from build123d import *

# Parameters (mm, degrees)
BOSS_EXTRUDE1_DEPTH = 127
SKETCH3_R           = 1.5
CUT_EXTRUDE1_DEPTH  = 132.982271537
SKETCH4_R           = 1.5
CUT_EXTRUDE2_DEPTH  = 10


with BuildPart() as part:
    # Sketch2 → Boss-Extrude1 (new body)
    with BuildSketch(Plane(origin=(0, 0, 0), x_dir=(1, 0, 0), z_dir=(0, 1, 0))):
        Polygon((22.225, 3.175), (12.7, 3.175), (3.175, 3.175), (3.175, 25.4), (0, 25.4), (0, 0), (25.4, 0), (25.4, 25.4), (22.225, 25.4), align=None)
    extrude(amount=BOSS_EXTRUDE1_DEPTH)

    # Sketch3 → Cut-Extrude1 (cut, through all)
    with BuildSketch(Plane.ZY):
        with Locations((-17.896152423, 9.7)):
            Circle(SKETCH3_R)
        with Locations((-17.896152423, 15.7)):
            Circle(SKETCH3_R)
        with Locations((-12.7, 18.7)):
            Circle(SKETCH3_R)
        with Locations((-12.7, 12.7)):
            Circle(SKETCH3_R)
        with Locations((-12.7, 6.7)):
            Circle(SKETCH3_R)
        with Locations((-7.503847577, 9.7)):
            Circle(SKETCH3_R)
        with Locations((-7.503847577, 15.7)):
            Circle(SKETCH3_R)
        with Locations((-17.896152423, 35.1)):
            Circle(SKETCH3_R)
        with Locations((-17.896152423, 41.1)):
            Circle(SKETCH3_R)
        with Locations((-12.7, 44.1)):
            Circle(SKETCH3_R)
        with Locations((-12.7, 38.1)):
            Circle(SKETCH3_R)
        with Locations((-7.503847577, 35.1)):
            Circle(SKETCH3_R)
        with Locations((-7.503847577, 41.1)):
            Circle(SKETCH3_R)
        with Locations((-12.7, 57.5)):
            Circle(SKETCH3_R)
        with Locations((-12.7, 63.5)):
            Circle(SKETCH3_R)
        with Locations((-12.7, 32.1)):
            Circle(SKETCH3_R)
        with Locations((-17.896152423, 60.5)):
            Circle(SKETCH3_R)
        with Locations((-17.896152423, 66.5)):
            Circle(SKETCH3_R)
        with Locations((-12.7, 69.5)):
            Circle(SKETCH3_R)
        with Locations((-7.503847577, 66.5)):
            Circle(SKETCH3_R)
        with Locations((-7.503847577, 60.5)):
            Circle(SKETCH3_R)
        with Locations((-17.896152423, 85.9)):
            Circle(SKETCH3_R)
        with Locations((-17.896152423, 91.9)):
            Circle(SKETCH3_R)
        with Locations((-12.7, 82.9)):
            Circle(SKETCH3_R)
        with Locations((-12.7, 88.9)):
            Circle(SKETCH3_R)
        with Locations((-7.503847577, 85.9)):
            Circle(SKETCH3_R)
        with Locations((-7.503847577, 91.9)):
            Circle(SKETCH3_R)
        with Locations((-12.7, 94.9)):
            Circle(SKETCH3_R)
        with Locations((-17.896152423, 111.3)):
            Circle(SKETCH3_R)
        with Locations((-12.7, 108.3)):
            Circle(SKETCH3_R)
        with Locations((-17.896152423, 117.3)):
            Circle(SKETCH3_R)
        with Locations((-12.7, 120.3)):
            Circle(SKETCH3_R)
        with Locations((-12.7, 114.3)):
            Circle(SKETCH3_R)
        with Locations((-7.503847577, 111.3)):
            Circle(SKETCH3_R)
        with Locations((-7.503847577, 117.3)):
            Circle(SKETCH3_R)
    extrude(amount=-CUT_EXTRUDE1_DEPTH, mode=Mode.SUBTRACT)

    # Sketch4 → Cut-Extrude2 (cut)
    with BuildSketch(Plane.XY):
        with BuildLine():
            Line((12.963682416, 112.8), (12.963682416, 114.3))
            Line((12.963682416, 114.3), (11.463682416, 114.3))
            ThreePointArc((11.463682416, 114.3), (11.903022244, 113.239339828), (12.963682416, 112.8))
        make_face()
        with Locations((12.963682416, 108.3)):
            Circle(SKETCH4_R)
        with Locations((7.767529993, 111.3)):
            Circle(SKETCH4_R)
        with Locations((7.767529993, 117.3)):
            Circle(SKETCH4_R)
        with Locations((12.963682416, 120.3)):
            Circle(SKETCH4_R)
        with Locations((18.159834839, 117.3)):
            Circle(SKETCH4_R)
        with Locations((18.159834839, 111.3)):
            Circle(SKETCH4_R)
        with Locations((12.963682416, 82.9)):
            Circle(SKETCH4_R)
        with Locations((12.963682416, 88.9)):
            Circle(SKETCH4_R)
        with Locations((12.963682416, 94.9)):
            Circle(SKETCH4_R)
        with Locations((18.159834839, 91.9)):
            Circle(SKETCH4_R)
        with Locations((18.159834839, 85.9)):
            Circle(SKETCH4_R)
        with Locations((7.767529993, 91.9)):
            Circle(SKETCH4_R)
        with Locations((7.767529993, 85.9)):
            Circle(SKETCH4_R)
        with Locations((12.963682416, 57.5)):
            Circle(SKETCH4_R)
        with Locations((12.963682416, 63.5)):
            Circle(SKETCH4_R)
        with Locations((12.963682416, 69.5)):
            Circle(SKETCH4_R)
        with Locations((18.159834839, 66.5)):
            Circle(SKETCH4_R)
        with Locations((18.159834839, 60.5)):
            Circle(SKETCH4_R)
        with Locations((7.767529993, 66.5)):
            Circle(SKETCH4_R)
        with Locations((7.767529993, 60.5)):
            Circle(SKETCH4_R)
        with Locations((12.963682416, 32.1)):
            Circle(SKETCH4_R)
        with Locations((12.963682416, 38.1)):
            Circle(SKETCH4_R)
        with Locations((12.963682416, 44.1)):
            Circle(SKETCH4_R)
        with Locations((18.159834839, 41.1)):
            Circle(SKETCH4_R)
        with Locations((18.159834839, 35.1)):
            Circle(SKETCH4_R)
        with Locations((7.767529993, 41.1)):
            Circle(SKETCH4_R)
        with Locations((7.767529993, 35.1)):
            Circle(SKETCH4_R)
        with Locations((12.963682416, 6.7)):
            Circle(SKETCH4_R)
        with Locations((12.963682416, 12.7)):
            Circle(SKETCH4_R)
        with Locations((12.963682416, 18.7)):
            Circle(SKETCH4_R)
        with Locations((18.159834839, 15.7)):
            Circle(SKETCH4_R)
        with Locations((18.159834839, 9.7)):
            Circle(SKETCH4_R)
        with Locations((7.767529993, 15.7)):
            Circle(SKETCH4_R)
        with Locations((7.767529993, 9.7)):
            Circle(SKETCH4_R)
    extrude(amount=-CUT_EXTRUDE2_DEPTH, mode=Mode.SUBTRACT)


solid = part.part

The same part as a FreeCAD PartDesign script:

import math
import FreeCAD as App
import Part
import Sketcher
Q = App.Units.Quantity

doc = App.newDocument("Part")
body = doc.addObject("PartDesign::Body", "Body")

sketch1 = body.newObject("Sketcher::SketchObject", "Sketch")
sketch1.AttachmentSupport = (doc.getObject("XZ_Plane"), [""])
sketch1.MapMode = "FlatFace"
sketch1.addGeometry([
    Part.LineSegment(App.Vector(22.2, -3.2, 0), App.Vector(3.2, -3.2, 0)),
    Part.LineSegment(App.Vector(3.2, -3.2, 0), App.Vector(3.2, -25.4, 0)),
    Part.LineSegment(App.Vector(3.2, -25.4, 0), App.Vector(0, -25.4, 0)),
    Part.LineSegment(App.Vector(0, -25.4, 0), App.Vector(0, 0, 0)),
    Part.LineSegment(App.Vector(0, 0, 0), App.Vector(25.4, 0, 0)),
    Part.LineSegment(App.Vector(25.4, 0, 0), App.Vector(25.4, -25.4, 0)),
    Part.LineSegment(App.Vector(25.4, -25.4, 0), App.Vector(22.2, -25.4, 0)),
    Part.LineSegment(App.Vector(22.2, -25.4, 0), App.Vector(22.2, -3.2, 0)),
], False)
sketch1.addConstraint([
    Sketcher.Constraint("Coincident", 0, 2, 1, 1),
    Sketcher.Constraint("Coincident", 1, 2, 2, 1),
    Sketcher.Constraint("Coincident", 2, 2, 3, 1),
    Sketcher.Constraint("Coincident", 3, 2, 4, 1),
    Sketcher.Constraint("Coincident", 4, 2, 5, 1),
    Sketcher.Constraint("Coincident", 5, 2, 6, 1),
    Sketcher.Constraint("Coincident", 6, 2, 7, 1),
    Sketcher.Constraint("Coincident", 7, 2, 0, 1),
    Sketcher.Constraint("Horizontal", 0),
    Sketcher.Constraint("Vertical", 1),
    Sketcher.Constraint("Horizontal", 2),
    Sketcher.Constraint("Vertical", 3),
    Sketcher.Constraint("Horizontal", 4),
    Sketcher.Constraint("Vertical", 5),
    Sketcher.Constraint("Horizontal", 6),
    Sketcher.Constraint("Vertical", 7),
    Sketcher.Constraint("Coincident", 3, 2, -1, 1),
    Sketcher.Constraint("Horizontal", 2, 2, 5, 2),
    Sketcher.Constraint("Equal", 2, 6),
    Sketcher.Constraint("Equal", 4, 3),
    Sketcher.Constraint("DistanceX", 4, 1, 4, 2, Q("1 in")),
    Sketcher.Constraint("DistanceX", 0, 2, 0, 1, Q("0.75 in")),
    Sketcher.Constraint("DistanceY", 1, 2, 1, 1, Q("0.875 in")),
])
pad1 = body.newObject("PartDesign::Pad", "Pad")
pad1.Profile = sketch1
pad1.Length = Q("5 in")
pad1.Reversed = True

sketch2 = body.newObject("Sketcher::SketchObject", "Sketch001")
sketch2.AttachmentSupport = (doc.getObject("YZ_Plane"), [""])
sketch2.MapMode = "FlatFace"
sketch2.addGeometry([
    Part.Circle(App.Vector(9.7, -17.9, 0), App.Vector(0, 0, 1), 1.5),
    Part.Circle(App.Vector(15.7, -17.9, 0), App.Vector(0, 0, 1), 1.5),
    Part.Circle(App.Vector(18.7, -12.7, 0), App.Vector(0, 0, 1), 1.5),
    Part.Circle(App.Vector(12.7, -12.7, 0), App.Vector(0, 0, 1), 1.5),
    Part.Circle(App.Vector(6.7, -12.7, 0), App.Vector(0, 0, 1), 1.5),
    Part.Circle(App.Vector(9.7, -7.5, 0), App.Vector(0, 0, 1), 1.5),
    Part.Circle(App.Vector(15.7, -7.5, 0), App.Vector(0, 0, 1), 1.5),
    Part.Circle(App.Vector(35.1, -17.9, 0), App.Vector(0, 0, 1), 1.5),
    Part.Circle(App.Vector(41.1, -17.9, 0), App.Vector(0, 0, 1), 1.5),
    Part.Circle(App.Vector(44.1, -12.7, 0), App.Vector(0, 0, 1), 1.5),
    Part.Circle(App.Vector(38.1, -12.7, 0), App.Vector(0, 0, 1), 1.5),
    Part.Circle(App.Vector(35.1, -7.5, 0), App.Vector(0, 0, 1), 1.5),
    Part.Circle(App.Vector(41.1, -7.5, 0), App.Vector(0, 0, 1), 1.5),
    Part.Circle(App.Vector(57.5, -12.7, 0), App.Vector(0, 0, 1), 1.5),
    Part.Circle(App.Vector(63.5, -12.7, 0), App.Vector(0, 0, 1), 1.5),
    Part.Circle(App.Vector(32.1, -12.7, 0), App.Vector(0, 0, 1), 1.5),
    Part.Circle(App.Vector(60.5, -17.9, 0), App.Vector(0, 0, 1), 1.5),
    Part.Circle(App.Vector(66.5, -17.9, 0), App.Vector(0, 0, 1), 1.5),
    Part.Circle(App.Vector(69.5, -12.7, 0), App.Vector(0, 0, 1), 1.5),
    Part.Circle(App.Vector(66.5, -7.5, 0), App.Vector(0, 0, 1), 1.5),
    Part.Circle(App.Vector(60.5, -7.5, 0), App.Vector(0, 0, 1), 1.5),
    Part.Circle(App.Vector(85.9, -17.9, 0), App.Vector(0, 0, 1), 1.5),
    Part.Circle(App.Vector(91.9, -17.9, 0), App.Vector(0, 0, 1), 1.5),
    Part.Circle(App.Vector(82.9, -12.7, 0), App.Vector(0, 0, 1), 1.5),
    Part.Circle(App.Vector(88.9, -12.7, 0), App.Vector(0, 0, 1), 1.5),
    Part.Circle(App.Vector(85.9, -7.5, 0), App.Vector(0, 0, 1), 1.5),
    Part.Circle(App.Vector(91.9, -7.5, 0), App.Vector(0, 0, 1), 1.5),
    Part.Circle(App.Vector(94.9, -12.7, 0), App.Vector(0, 0, 1), 1.5),
    Part.Circle(App.Vector(111.3, -17.9, 0), App.Vector(0, 0, 1), 1.5),
    Part.Circle(App.Vector(108.3, -12.7, 0), App.Vector(0, 0, 1), 1.5),
    Part.Circle(App.Vector(117.3, -17.9, 0), App.Vector(0, 0, 1), 1.5),
    Part.Circle(App.Vector(120.3, -12.7, 0), App.Vector(0, 0, 1), 1.5),
    Part.Circle(App.Vector(114.3, -12.7, 0), App.Vector(0, 0, 1), 1.5),
    Part.Circle(App.Vector(111.3, -7.5, 0), App.Vector(0, 0, 1), 1.5),
    Part.Circle(App.Vector(117.3, -7.5, 0), App.Vector(0, 0, 1), 1.5),
], False)
sketch2.addConstraint([
    Sketcher.Constraint("Equal", 0, 1),
    Sketcher.Constraint("Equal", 1, 2),
    Sketcher.Constraint("Equal", 2, 3),
    Sketcher.Constraint("Equal", 3, 4),
    Sketcher.Constraint("Equal", 4, 5),
    Sketcher.Constraint("Equal", 5, 6),
    Sketcher.Constraint("Equal", 6, 7),
    Sketcher.Constraint("Equal", 7, 8),
    Sketcher.Constraint("Equal", 8, 9),
    Sketcher.Constraint("Equal", 9, 10),
    Sketcher.Constraint("Equal", 10, 11),
    Sketcher.Constraint("Equal", 11, 12),
    Sketcher.Constraint("Equal", 12, 13),
    Sketcher.Constraint("Equal", 13, 14),
    Sketcher.Constraint("Equal", 14, 15),
    Sketcher.Constraint("Equal", 15, 16),
    Sketcher.Constraint("Equal", 16, 17),
    Sketcher.Constraint("Equal", 17, 18),
    Sketcher.Constraint("Equal", 18, 19),
    Sketcher.Constraint("Equal", 19, 20),
    Sketcher.Constraint("Equal", 20, 21),
    Sketcher.Constraint("Equal", 21, 22),
    Sketcher.Constraint("Equal", 22, 23),
    Sketcher.Constraint("Equal", 23, 24),
    Sketcher.Constraint("Equal", 24, 25),
    Sketcher.Constraint("Equal", 25, 26),
    Sketcher.Constraint("Equal", 26, 27),
    Sketcher.Constraint("Equal", 27, 28),
    Sketcher.Constraint("Equal", 28, 29),
    Sketcher.Constraint("Equal", 29, 30),
    Sketcher.Constraint("Equal", 30, 31),
    Sketcher.Constraint("Equal", 31, 32),
    Sketcher.Constraint("Equal", 32, 33),
    Sketcher.Constraint("Equal", 33, 34),
    Sketcher.Constraint("Horizontal", 0, 3, 1, 3),
    Sketcher.Constraint("Horizontal", 2, 3, 3, 3),
    Sketcher.Constraint("Horizontal", 3, 3, 4, 3),
    Sketcher.Constraint("Horizontal", 5, 3, 6, 3),
    Sketcher.Constraint("Horizontal", 1, 3, 7, 3),
    Sketcher.Constraint("Horizontal", 7, 3, 8, 3),
    Sketcher.Constraint("Horizontal", 4, 3, 9, 3),
    Sketcher.Constraint("Horizontal", 9, 3, 10, 3),
    Sketcher.Constraint("Horizontal", 6, 3, 11, 3),
    Sketcher.Constraint("Horizontal", 11, 3, 12, 3),
    Sketcher.Constraint("Horizontal", 10, 3, 13, 3),
    Sketcher.Constraint("Horizontal", 13, 3, 14, 3),
    Sketcher.Constraint("Horizontal", 14, 3, 15, 3),
    Sketcher.Constraint("Horizontal", 8, 3, 16, 3),
    Sketcher.Constraint("Horizontal", 16, 3, 17, 3),
    Sketcher.Constraint("Horizontal", 15, 3, 18, 3),
    Sketcher.Constraint("Horizontal", 12, 3, 19, 3),
    Sketcher.Constraint("Horizontal", 19, 3, 20, 3),
    Sketcher.Constraint("Horizontal", 17, 3, 21, 3),
    Sketcher.Constraint("Horizontal", 21, 3, 22, 3),
    Sketcher.Constraint("Horizontal", 18, 3, 23, 3),
    Sketcher.Constraint("Horizontal", 23, 3, 24, 3),
    Sketcher.Constraint("Horizontal", 20, 3, 25, 3),
    Sketcher.Constraint("Horizontal", 25, 3, 26, 3),
    Sketcher.Constraint("Horizontal", 24, 3, 27, 3),
    Sketcher.Constraint("Horizontal", 22, 3, 28, 3),
    Sketcher.Constraint("Horizontal", 27, 3, 29, 3),
    Sketcher.Constraint("Horizontal", 28, 3, 30, 3),
    Sketcher.Constraint("Horizontal", 29, 3, 31, 3),
    Sketcher.Constraint("Horizontal", 31, 3, 32, 3),
    Sketcher.Constraint("Horizontal", 26, 3, 33, 3),
    Sketcher.Constraint("Horizontal", 33, 3, 34, 3),
    Sketcher.Constraint("Vertical", 0, 3, 5, 3),
    Sketcher.Constraint("Vertical", 1, 3, 6, 3),
    Sketcher.Constraint("Vertical", 7, 3, 11, 3),
    Sketcher.Constraint("Vertical", 8, 3, 12, 3),
    Sketcher.Constraint("Vertical", 17, 3, 19, 3),
    Sketcher.Constraint("Vertical", 16, 3, 20, 3),
    Sketcher.Constraint("Vertical", 21, 3, 25, 3),
    Sketcher.Constraint("Vertical", 22, 3, 26, 3),
    Sketcher.Constraint("Vertical", 28, 3, 33, 3),
    Sketcher.Constraint("Vertical", 30, 3, 34, 3),
    Sketcher.Constraint("DistanceX", 0, 3, 7, 3, Q("1 in")),
    Sketcher.Constraint("DistanceX", 1, 3, 8, 3, Q("1 in")),
    Sketcher.Constraint("DistanceX", 2, 3, 9, 3, Q("1 in")),
    Sketcher.Constraint("DistanceX", 10, 3, 14, 3, Q("1 in")),
    Sketcher.Constraint("DistanceX", 8, 3, 17, 3, Q("1 in")),
    Sketcher.Constraint("DistanceX", 9, 3, 18, 3, Q("1 in")),
    Sketcher.Constraint("DistanceX", 16, 3, 21, 3, Q("1 in")),
    Sketcher.Constraint("DistanceX", 17, 3, 22, 3, Q("1 in")),
    Sketcher.Constraint("DistanceX", 21, 3, 28, 3, Q("1 in")),
    Sketcher.Constraint("DistanceX", 22, 3, 30, 3, Q("1 in")),
    Sketcher.Constraint("DistanceX", 27, 3, 31, 3, Q("1 in")),
    Sketcher.Constraint("DistanceY", 2, 3, -1, 1, Q("0.5 in")),
    Sketcher.Constraint("DistanceX", -1, 1, 3, 3, Q("0.5 in")),
    Sketcher.Constraint("DistanceX", -1, 1, 10, 3, Q("1.5 in")),
    Sketcher.Constraint("DistanceX", -1, 1, 24, 3, Q("3.5 in")),
    Sketcher.Constraint("DistanceX", -1, 1, 32, 3, Q("4.5 in")),
    Sketcher.Constraint("Diameter", 0, Q("3 mm")),
    Sketcher.Constraint("DistanceX", -1, 1, 0, 3, Q("9.7 mm")),
    Sketcher.Constraint("DistanceX", -1, 1, 1, 3, Q("15.7 mm")),
    Sketcher.Constraint("DistanceX", -1, 1, 2, 3, Q("18.7 mm")),
    Sketcher.Constraint("DistanceX", -1, 1, 4, 3, Q("6.7 mm")),
    Sketcher.Constraint("DistanceX", -1, 1, 13, 3, Q("57.5 mm")),
    Sketcher.Constraint("DistanceX", -1, 1, 15, 3, Q("32.1 mm")),
    Sketcher.Constraint("DistanceX", -1, 1, 16, 3, Q("60.5 mm")),
    Sketcher.Constraint("DistanceX", -1, 1, 23, 3, Q("82.9 mm")),
    Sketcher.Constraint("DistanceX", -1, 1, 27, 3, Q("94.9 mm")),
    Sketcher.Constraint("DistanceX", -1, 1, 29, 3, Q("108.3 mm")),
    Sketcher.Constraint("DistanceY", 0, 3, -1, 1, Q("17.896152 mm")),
    Sketcher.Constraint("DistanceY", 5, 3, -1, 1, Q("7.503848 mm")),
])
pocket1 = body.newObject("PartDesign::Pocket", "Pocket")
pocket1.Profile = sketch2
pocket1.Type = "ThroughAll"
pocket1.Reversed = True

sketch3 = body.newObject("Sketcher::SketchObject", "Sketch002")
sketch3.AttachmentSupport = (doc.getObject("XY_Plane"), [""])
sketch3.MapMode = "FlatFace"
sketch3.addGeometry([
    Part.LineSegment(App.Vector(13, 112.8, 0), App.Vector(13, 114.3, 0)),
    Part.LineSegment(App.Vector(13, 114.3, 0), App.Vector(11.5, 114.3, 0)),
    Part.ArcOfCircle(Part.Circle(App.Vector(13, 114.3, 0), App.Vector(0, 0, 1), 1.5), math.radians(180), math.radians(270)),
    Part.Circle(App.Vector(13, 108.3, 0), App.Vector(0, 0, 1), 1.5),
    Part.Circle(App.Vector(7.8, 111.3, 0), App.Vector(0, 0, 1), 1.5),
    Part.Circle(App.Vector(7.8, 117.3, 0), App.Vector(0, 0, 1), 1.5),
    Part.Circle(App.Vector(13, 120.3, 0), App.Vector(0, 0, 1), 1.5),
    Part.Circle(App.Vector(18.2, 117.3, 0), App.Vector(0, 0, 1), 1.5),
    Part.Circle(App.Vector(18.2, 111.3, 0), App.Vector(0, 0, 1), 1.5),
    Part.Circle(App.Vector(13, 82.9, 0), App.Vector(0, 0, 1), 1.5),
    Part.Circle(App.Vector(13, 88.9, 0), App.Vector(0, 0, 1), 1.5),
    Part.Circle(App.Vector(13, 94.9, 0), App.Vector(0, 0, 1), 1.5),
    Part.Circle(App.Vector(18.2, 91.9, 0), App.Vector(0, 0, 1), 1.5),
    Part.Circle(App.Vector(18.2, 85.9, 0), App.Vector(0, 0, 1), 1.5),
    Part.Circle(App.Vector(7.8, 91.9, 0), App.Vector(0, 0, 1), 1.5),
    Part.Circle(App.Vector(7.8, 85.9, 0), App.Vector(0, 0, 1), 1.5),
    Part.Circle(App.Vector(13, 57.5, 0), App.Vector(0, 0, 1), 1.5),
    Part.Circle(App.Vector(13, 63.5, 0), App.Vector(0, 0, 1), 1.5),
    Part.Circle(App.Vector(13, 69.5, 0), App.Vector(0, 0, 1), 1.5),
    Part.Circle(App.Vector(18.2, 66.5, 0), App.Vector(0, 0, 1), 1.5),
    Part.Circle(App.Vector(18.2, 60.5, 0), App.Vector(0, 0, 1), 1.5),
    Part.Circle(App.Vector(7.8, 66.5, 0), App.Vector(0, 0, 1), 1.5),
    Part.Circle(App.Vector(7.8, 60.5, 0), App.Vector(0, 0, 1), 1.5),
    Part.Circle(App.Vector(13, 32.1, 0), App.Vector(0, 0, 1), 1.5),
    Part.Circle(App.Vector(13, 38.1, 0), App.Vector(0, 0, 1), 1.5),
    Part.Circle(App.Vector(13, 44.1, 0), App.Vector(0, 0, 1), 1.5),
    Part.Circle(App.Vector(18.2, 41.1, 0), App.Vector(0, 0, 1), 1.5),
    Part.Circle(App.Vector(18.2, 35.1, 0), App.Vector(0, 0, 1), 1.5),
    Part.Circle(App.Vector(7.8, 41.1, 0), App.Vector(0, 0, 1), 1.5),
    Part.Circle(App.Vector(7.8, 35.1, 0), App.Vector(0, 0, 1), 1.5),
    Part.Circle(App.Vector(13, 6.7, 0), App.Vector(0, 0, 1), 1.5),
    Part.Circle(App.Vector(13, 12.7, 0), App.Vector(0, 0, 1), 1.5),
    Part.Circle(App.Vector(13, 18.7, 0), App.Vector(0, 0, 1), 1.5),
    Part.Circle(App.Vector(18.2, 15.7, 0), App.Vector(0, 0, 1), 1.5),
    Part.Circle(App.Vector(18.2, 9.7, 0), App.Vector(0, 0, 1), 1.5),
    Part.Circle(App.Vector(7.8, 15.7, 0), App.Vector(0, 0, 1), 1.5),
    Part.Circle(App.Vector(7.8, 9.7, 0), App.Vector(0, 0, 1), 1.5),
], False)
sketch3.addConstraint([
    Sketcher.Constraint("Coincident", 0, 2, 1, 1),
    Sketcher.Constraint("Coincident", 1, 2, 2, 1),
    Sketcher.Constraint("Coincident", 2, 2, 0, 1),
    Sketcher.Constraint("Vertical", 0),
    Sketcher.Constraint("Horizontal", 1),
    Sketcher.Constraint("Coincident", 0, 2, 2, 3),
    Sketcher.Constraint("Equal", 2, 3),
    Sketcher.Constraint("Equal", 3, 4),
    Sketcher.Constraint("Equal", 4, 5),
    Sketcher.Constraint("Equal", 5, 6),
    Sketcher.Constraint("Equal", 6, 7),
    Sketcher.Constraint("Equal", 7, 8),
    Sketcher.Constraint("Equal", 8, 9),
    Sketcher.Constraint("Equal", 9, 10),
    Sketcher.Constraint("Equal", 10, 11),
    Sketcher.Constraint("Equal", 11, 12),
    Sketcher.Constraint("Equal", 12, 13),
    Sketcher.Constraint("Equal", 13, 14),
    Sketcher.Constraint("Equal", 14, 15),
    Sketcher.Constraint("Equal", 15, 16),
    Sketcher.Constraint("Equal", 16, 17),
    Sketcher.Constraint("Equal", 17, 18),
    Sketcher.Constraint("Equal", 18, 19),
    Sketcher.Constraint("Equal", 19, 20),
    Sketcher.Constraint("Equal", 20, 21),
    Sketcher.Constraint("Equal", 21, 22),
    Sketcher.Constraint("Equal", 22, 23),
    Sketcher.Constraint("Equal", 23, 24),
    Sketcher.Constraint("Equal", 24, 25),
    Sketcher.Constraint("Equal", 25, 26),
    Sketcher.Constraint("Equal", 26, 27),
    Sketcher.Constraint("Equal", 27, 28),
    Sketcher.Constraint("Equal", 28, 29),
    Sketcher.Constraint("Equal", 29, 30),
    Sketcher.Constraint("Equal", 30, 31),
    Sketcher.Constraint("Equal", 31, 32),
    Sketcher.Constraint("Equal", 32, 33),
    Sketcher.Constraint("Equal", 33, 34),
    Sketcher.Constraint("Equal", 34, 35),
    Sketcher.Constraint("Equal", 35, 36),
    Sketcher.Constraint("Horizontal", 5, 3, 7, 3),
    Sketcher.Constraint("Horizontal", 4, 3, 8, 3),
    Sketcher.Constraint("Horizontal", 12, 3, 14, 3),
    Sketcher.Constraint("Horizontal", 13, 3, 15, 3),
    Sketcher.Constraint("Horizontal", 19, 3, 21, 3),
    Sketcher.Constraint("Horizontal", 20, 3, 22, 3),
    Sketcher.Constraint("Horizontal", 26, 3, 28, 3),
    Sketcher.Constraint("Horizontal", 27, 3, 29, 3),
    Sketcher.Constraint("Horizontal", 33, 3, 35, 3),
    Sketcher.Constraint("Horizontal", 34, 3, 36, 3),
    Sketcher.Constraint("Vertical", 2, 3, 3, 3),
    Sketcher.Constraint("Vertical", 4, 3, 5, 3),
    Sketcher.Constraint("Vertical", 3, 3, 6, 3),
    Sketcher.Constraint("Vertical", 7, 3, 8, 3),
    Sketcher.Constraint("Vertical", 6, 3, 9, 3),
    Sketcher.Constraint("Vertical", 9, 3, 10, 3),
    Sketcher.Constraint("Vertical", 10, 3, 11, 3),
    Sketcher.Constraint("Vertical", 8, 3, 12, 3),
    Sketcher.Constraint("Vertical", 12, 3, 13, 3),
    Sketcher.Constraint("Vertical", 5, 3, 14, 3),
    Sketcher.Constraint("Vertical", 14, 3, 15, 3),
    Sketcher.Constraint("Vertical", 11, 3, 16, 3),
    Sketcher.Constraint("Vertical", 16, 3, 17, 3),
    Sketcher.Constraint("Vertical", 17, 3, 18, 3),
    Sketcher.Constraint("Vertical", 13, 3, 19, 3),
    Sketcher.Constraint("Vertical", 19, 3, 20, 3),
    Sketcher.Constraint("Vertical", 15, 3, 21, 3),
    Sketcher.Constraint("Vertical", 21, 3, 22, 3),
    Sketcher.Constraint("Vertical", 18, 3, 23, 3),
    Sketcher.Constraint("Vertical", 23, 3, 24, 3),
    Sketcher.Constraint("Vertical", 24, 3, 25, 3),
    Sketcher.Constraint("Vertical", 20, 3, 26, 3),
    Sketcher.Constraint("Vertical", 26, 3, 27, 3),
    Sketcher.Constraint("Vertical", 22, 3, 28, 3),
    Sketcher.Constraint("Vertical", 28, 3, 29, 3),
    Sketcher.Constraint("Vertical", 25, 3, 30, 3),
    Sketcher.Constraint("Vertical", 30, 3, 31, 3),
    Sketcher.Constraint("Vertical", 31, 3, 32, 3),
    Sketcher.Constraint("Vertical", 27, 3, 33, 3),
    Sketcher.Constraint("Vertical", 33, 3, 34, 3),
    Sketcher.Constraint("Vertical", 29, 3, 35, 3),
    Sketcher.Constraint("Vertical", 35, 3, 36, 3),
    Sketcher.Constraint("DistanceY", 9, 3, 3, 3, Q("1 in")),
    Sketcher.Constraint("DistanceY", 10, 3, 2, 3, Q("1 in")),
    Sketcher.Constraint("DistanceY", 16, 3, 9, 3, Q("1 in")),
    Sketcher.Constraint("DistanceY", 17, 3, 10, 3, Q("1 in")),
    Sketcher.Constraint("DistanceY", 23, 3, 16, 3, Q("1 in")),
    Sketcher.Constraint("DistanceY", 24, 3, 17, 3, Q("1 in")),
    Sketcher.Constraint("DistanceY", 30, 3, 23, 3, Q("1 in")),
    Sketcher.Constraint("DistanceY", 31, 3, 24, 3, Q("1 in")),
    Sketcher.Constraint("DistanceY", -1, 1, 2, 3, Q("4.5 in")),
    Sketcher.Constraint("Diameter", 3, Q("3 mm")),
    Sketcher.Constraint("DistanceY", -1, 1, 3, 3, Q("108.3 mm")),
    Sketcher.Constraint("DistanceY", -1, 1, 4, 3, Q("111.3 mm")),
    Sketcher.Constraint("DistanceY", -1, 1, 5, 3, Q("117.3 mm")),
    Sketcher.Constraint("DistanceY", -1, 1, 6, 3, Q("120.3 mm")),
    Sketcher.Constraint("DistanceY", -1, 1, 11, 3, Q("94.9 mm")),
    Sketcher.Constraint("DistanceY", -1, 1, 12, 3, Q("91.9 mm")),
    Sketcher.Constraint("DistanceY", -1, 1, 13, 3, Q("85.9 mm")),
    Sketcher.Constraint("DistanceY", -1, 1, 18, 3, Q("69.5 mm")),
    Sketcher.Constraint("DistanceY", -1, 1, 19, 3, Q("66.5 mm")),
    Sketcher.Constraint("DistanceY", -1, 1, 20, 3, Q("60.5 mm")),
    Sketcher.Constraint("DistanceY", -1, 1, 25, 3, Q("44.1 mm")),
    Sketcher.Constraint("DistanceY", -1, 1, 26, 3, Q("41.1 mm")),
    Sketcher.Constraint("DistanceY", -1, 1, 27, 3, Q("35.1 mm")),
    Sketcher.Constraint("DistanceY", -1, 1, 32, 3, Q("18.7 mm")),
    Sketcher.Constraint("DistanceY", -1, 1, 33, 3, Q("15.7 mm")),
    Sketcher.Constraint("DistanceY", -1, 1, 34, 3, Q("9.7 mm")),
    Sketcher.Constraint("DistanceX", -1, 1, 4, 3, Q("7.76753 mm")),
    Sketcher.Constraint("DistanceX", -1, 1, 2, 3, Q("12.963682 mm")),
    Sketcher.Constraint("DistanceX", -1, 1, 7, 3, Q("18.159835 mm")),
])
pocket2 = body.newObject("PartDesign::Pocket", "Pocket001")
pocket2.Profile = sketch3
pocket2.Length = 10

doc.recompute()
